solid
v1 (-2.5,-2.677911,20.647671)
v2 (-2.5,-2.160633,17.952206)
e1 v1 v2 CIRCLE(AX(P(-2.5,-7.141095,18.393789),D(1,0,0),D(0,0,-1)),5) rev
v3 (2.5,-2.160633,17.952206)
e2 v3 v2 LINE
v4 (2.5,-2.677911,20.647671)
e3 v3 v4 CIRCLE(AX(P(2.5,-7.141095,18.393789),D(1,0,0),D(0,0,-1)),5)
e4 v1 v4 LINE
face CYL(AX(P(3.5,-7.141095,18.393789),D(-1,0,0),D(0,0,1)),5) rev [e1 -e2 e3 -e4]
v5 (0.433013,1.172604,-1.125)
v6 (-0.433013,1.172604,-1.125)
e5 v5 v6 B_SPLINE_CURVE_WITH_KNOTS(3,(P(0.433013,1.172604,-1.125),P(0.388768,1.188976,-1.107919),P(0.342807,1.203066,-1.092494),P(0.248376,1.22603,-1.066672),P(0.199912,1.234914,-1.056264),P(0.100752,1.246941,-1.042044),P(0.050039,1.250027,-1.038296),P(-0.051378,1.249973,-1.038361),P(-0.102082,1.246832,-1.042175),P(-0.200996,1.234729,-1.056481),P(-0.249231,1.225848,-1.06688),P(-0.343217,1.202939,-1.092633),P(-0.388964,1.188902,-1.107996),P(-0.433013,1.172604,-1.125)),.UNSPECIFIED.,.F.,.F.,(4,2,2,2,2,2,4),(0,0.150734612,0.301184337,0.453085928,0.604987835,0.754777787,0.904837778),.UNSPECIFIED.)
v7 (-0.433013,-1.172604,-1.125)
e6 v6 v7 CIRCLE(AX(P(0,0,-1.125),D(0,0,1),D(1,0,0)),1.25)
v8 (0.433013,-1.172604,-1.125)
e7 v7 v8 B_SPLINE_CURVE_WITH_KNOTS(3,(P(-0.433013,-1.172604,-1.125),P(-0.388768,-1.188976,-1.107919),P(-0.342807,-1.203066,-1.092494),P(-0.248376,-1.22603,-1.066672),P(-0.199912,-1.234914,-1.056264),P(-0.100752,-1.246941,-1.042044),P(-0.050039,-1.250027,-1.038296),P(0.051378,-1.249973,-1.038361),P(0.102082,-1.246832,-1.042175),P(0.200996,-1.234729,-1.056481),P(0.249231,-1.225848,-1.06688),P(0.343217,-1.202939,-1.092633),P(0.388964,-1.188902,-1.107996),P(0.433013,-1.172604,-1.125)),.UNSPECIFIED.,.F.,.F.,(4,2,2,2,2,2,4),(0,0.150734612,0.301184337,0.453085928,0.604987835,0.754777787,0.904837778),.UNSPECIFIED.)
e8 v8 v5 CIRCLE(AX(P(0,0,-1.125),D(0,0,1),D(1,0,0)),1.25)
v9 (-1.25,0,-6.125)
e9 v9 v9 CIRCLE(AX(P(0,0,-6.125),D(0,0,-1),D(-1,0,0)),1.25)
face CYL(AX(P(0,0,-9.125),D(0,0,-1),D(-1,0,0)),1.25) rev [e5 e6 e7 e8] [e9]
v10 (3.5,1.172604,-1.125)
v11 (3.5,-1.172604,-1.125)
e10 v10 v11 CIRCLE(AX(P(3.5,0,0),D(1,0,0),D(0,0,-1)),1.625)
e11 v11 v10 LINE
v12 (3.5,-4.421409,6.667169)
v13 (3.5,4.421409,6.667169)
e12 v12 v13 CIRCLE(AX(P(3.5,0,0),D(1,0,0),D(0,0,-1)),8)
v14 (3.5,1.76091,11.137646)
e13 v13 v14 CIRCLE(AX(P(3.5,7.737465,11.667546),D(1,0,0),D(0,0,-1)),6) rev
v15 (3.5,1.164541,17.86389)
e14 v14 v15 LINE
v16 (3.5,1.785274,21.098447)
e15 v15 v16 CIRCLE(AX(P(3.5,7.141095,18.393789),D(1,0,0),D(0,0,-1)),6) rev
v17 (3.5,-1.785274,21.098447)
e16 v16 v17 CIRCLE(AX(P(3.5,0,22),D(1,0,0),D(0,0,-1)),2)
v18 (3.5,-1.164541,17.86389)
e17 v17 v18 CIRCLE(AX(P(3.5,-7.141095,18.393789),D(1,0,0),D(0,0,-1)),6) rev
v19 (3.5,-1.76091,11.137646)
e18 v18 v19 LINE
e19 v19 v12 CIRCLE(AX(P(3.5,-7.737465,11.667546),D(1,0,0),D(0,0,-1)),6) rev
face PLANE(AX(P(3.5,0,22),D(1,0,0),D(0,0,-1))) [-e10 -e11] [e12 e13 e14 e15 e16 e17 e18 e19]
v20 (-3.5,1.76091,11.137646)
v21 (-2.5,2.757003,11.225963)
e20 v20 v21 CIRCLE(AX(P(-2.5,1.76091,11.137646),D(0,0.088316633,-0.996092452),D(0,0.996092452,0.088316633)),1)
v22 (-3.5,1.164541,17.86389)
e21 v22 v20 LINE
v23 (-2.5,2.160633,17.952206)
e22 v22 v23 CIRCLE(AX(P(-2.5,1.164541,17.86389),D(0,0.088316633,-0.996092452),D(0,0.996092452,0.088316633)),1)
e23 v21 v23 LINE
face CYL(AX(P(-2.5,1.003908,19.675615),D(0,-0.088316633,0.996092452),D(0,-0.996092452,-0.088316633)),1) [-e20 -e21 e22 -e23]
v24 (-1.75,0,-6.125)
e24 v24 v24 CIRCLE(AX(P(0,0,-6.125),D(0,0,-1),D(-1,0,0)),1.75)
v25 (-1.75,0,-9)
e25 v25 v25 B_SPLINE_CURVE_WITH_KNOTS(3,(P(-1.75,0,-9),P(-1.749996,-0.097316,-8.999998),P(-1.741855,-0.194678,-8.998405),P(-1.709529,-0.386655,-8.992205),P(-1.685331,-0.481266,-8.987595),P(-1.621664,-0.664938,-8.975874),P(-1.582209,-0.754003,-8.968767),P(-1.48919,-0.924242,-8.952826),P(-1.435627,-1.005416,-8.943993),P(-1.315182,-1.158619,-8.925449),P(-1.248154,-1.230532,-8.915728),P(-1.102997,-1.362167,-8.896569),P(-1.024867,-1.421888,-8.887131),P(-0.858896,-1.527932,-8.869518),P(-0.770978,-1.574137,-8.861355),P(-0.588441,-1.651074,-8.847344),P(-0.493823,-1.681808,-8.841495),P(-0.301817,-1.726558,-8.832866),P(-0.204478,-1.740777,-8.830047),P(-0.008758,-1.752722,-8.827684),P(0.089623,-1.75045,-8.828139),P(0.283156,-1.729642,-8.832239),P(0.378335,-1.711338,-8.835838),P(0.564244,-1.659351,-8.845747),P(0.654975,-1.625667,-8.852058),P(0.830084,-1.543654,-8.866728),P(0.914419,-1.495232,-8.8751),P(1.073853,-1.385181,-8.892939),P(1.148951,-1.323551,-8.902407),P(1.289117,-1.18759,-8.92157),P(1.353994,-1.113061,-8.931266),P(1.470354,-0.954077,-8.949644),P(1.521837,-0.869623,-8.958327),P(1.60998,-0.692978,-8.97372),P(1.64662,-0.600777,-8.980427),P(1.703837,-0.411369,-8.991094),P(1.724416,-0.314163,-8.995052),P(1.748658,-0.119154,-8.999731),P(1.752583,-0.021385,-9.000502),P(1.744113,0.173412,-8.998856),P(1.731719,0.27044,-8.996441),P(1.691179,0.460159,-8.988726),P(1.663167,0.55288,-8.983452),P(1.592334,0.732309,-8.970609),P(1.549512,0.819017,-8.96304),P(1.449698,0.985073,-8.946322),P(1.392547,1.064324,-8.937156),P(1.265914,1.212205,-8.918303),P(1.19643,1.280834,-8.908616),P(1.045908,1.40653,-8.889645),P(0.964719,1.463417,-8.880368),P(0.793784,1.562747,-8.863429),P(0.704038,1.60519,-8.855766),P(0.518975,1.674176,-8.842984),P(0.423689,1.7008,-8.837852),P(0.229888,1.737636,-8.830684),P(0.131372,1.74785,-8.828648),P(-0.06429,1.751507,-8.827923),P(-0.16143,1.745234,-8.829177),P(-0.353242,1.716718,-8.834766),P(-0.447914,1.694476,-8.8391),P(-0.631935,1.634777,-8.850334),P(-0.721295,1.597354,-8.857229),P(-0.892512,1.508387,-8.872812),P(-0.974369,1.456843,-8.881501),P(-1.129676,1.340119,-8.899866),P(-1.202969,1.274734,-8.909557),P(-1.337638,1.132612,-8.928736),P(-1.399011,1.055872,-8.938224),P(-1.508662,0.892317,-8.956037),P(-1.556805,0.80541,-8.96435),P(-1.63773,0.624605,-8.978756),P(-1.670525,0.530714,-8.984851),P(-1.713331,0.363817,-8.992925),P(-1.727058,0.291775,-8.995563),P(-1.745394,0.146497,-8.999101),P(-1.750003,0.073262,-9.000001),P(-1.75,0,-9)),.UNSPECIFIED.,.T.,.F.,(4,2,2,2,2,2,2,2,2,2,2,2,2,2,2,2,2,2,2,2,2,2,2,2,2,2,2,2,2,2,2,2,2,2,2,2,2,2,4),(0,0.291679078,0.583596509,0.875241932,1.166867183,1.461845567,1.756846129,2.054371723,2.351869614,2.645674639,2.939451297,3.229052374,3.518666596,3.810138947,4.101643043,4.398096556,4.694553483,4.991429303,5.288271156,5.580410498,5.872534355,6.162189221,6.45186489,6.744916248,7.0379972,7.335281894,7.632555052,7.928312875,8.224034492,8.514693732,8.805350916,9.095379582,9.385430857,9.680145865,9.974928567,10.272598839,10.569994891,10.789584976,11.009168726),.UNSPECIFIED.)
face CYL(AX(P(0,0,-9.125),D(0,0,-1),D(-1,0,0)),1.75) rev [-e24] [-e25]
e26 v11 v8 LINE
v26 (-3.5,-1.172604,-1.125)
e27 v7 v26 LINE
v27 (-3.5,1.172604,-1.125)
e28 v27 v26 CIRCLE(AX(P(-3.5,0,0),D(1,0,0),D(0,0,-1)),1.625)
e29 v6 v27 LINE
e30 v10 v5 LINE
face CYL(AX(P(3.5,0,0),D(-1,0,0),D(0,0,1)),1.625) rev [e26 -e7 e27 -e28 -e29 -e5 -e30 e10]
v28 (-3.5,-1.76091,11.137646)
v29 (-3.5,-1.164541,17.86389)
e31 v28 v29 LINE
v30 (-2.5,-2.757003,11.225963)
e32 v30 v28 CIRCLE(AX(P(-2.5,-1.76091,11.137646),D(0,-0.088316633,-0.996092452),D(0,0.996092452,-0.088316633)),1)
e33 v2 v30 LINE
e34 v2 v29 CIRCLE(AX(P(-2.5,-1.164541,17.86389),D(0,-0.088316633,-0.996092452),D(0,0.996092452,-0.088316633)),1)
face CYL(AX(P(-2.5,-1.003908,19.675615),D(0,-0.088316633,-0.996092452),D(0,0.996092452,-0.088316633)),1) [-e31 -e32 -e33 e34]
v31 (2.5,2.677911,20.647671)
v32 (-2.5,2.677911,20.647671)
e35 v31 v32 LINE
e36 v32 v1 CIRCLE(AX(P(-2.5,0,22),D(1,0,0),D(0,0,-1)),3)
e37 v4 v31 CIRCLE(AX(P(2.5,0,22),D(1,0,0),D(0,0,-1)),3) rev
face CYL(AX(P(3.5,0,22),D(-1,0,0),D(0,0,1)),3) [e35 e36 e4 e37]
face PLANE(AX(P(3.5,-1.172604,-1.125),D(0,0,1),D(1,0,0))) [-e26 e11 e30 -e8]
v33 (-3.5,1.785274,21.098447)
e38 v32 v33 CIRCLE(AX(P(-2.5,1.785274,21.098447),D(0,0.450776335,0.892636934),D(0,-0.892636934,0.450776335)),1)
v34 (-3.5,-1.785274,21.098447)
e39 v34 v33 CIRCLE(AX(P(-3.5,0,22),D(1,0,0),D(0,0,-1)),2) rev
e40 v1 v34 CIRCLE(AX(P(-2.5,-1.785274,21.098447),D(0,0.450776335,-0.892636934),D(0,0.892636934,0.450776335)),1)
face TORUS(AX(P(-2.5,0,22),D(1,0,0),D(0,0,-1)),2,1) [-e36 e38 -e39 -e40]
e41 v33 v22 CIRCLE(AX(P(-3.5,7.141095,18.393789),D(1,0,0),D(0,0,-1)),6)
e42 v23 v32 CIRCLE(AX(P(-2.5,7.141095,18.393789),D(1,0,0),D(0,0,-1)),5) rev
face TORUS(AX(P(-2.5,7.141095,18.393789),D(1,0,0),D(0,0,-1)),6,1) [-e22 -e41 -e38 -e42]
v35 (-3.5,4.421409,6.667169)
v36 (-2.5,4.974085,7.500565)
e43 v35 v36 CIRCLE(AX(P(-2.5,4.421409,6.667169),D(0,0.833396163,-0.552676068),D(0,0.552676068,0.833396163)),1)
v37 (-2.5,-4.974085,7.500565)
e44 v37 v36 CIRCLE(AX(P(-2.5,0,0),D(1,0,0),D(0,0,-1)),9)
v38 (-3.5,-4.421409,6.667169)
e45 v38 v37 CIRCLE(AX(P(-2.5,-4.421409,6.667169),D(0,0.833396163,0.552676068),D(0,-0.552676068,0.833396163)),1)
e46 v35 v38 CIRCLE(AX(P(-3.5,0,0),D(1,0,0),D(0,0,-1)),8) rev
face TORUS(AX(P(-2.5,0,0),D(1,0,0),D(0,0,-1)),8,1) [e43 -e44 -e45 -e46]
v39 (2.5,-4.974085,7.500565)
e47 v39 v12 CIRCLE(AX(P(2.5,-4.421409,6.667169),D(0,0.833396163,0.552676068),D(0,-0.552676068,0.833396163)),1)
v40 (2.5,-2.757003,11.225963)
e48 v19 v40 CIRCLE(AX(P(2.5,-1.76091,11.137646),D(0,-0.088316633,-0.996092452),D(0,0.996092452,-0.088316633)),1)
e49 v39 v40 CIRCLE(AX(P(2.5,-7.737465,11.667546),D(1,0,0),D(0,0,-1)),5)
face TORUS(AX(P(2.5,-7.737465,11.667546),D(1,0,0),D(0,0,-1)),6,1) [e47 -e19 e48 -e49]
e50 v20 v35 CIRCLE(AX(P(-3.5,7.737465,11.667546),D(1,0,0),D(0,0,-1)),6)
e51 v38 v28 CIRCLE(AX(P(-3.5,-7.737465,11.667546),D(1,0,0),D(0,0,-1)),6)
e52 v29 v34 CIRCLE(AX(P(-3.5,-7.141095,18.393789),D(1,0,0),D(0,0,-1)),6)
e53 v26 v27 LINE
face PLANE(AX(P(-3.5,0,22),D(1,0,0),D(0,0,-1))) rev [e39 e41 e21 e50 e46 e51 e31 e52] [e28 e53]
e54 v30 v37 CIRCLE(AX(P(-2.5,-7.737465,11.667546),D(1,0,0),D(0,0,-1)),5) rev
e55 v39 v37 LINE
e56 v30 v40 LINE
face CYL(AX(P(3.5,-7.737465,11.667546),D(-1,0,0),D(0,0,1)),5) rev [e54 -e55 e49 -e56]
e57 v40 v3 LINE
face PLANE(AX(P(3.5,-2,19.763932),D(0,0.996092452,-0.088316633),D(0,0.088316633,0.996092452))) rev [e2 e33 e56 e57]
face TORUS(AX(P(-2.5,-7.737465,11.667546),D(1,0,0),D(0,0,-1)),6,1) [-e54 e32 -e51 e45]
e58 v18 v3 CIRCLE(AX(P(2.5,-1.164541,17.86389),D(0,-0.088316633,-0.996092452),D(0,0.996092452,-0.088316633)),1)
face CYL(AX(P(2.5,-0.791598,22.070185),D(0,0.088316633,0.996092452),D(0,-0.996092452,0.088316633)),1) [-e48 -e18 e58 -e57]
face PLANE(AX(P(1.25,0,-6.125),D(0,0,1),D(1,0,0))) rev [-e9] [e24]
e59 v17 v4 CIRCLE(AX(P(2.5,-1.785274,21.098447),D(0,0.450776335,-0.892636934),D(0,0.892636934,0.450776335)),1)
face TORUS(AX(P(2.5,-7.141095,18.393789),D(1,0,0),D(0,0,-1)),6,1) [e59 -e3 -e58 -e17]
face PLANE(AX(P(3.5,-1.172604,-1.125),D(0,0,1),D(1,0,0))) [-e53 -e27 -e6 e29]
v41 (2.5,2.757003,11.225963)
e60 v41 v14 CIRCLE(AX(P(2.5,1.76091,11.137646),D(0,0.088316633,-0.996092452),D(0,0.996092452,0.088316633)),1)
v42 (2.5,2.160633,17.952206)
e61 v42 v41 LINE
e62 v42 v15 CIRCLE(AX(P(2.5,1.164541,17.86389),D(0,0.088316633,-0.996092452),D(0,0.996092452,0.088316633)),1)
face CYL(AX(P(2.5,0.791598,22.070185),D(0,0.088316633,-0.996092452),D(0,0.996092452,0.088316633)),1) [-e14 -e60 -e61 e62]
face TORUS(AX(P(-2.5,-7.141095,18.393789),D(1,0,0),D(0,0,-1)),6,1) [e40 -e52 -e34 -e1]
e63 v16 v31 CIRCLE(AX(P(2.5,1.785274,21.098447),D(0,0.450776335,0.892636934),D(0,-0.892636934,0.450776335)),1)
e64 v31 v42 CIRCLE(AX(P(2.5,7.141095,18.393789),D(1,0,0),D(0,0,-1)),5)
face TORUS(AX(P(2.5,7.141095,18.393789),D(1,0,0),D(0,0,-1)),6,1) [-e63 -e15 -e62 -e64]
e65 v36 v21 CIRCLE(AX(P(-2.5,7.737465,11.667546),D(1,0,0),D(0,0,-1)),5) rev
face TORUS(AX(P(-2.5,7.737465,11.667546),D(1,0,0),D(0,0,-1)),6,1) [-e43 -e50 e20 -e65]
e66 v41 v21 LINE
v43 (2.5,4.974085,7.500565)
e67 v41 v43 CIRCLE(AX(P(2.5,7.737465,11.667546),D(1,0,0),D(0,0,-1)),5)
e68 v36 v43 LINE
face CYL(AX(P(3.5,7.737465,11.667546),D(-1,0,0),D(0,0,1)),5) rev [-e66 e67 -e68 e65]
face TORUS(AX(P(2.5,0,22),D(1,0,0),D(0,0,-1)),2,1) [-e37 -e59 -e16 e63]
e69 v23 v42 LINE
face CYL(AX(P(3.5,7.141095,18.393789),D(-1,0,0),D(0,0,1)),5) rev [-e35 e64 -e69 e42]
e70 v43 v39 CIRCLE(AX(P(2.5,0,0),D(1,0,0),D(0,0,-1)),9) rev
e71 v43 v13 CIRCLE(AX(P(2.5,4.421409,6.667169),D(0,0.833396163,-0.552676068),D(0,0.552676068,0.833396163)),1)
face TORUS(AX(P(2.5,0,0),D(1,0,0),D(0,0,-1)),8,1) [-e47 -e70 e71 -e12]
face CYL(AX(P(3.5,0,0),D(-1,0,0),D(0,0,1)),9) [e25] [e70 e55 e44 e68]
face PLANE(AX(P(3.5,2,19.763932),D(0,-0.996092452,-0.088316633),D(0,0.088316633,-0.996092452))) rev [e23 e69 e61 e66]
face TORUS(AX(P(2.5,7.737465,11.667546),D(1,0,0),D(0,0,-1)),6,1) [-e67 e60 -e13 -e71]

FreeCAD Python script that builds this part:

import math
import FreeCAD as App
import Part
import Sketcher

V = App.Vector


def edges_at(feature, points):
    """Names of the edges that pass closest to the given points."""
    edges = feature.Shape.Edges
    near = lambda p: min(range(len(edges)), key=lambda i: edges[i].distToShape(Part.Vertex(*p))[0])
    return sorted({f"Edge{near(p) + 1}" for p in points})

doc = App.newDocument("Part")
body = doc.addObject("PartDesign::Body", "Body")

sketch1 = doc.addObject("Sketcher::SketchObject", "Sketch")
body.addObject(sketch1)
sketch1.AttachmentSupport = (doc.YZ_Plane, [""])
sketch1.MapMode = "FlatFace"
sketch1.addGeometry([
    Part.LineSegment(V(3, 8.485281, 0), V(2, 19.763932, 0)),
    Part.ArcOfCircle(Part.Circle(V(0, 22, 0), V(0, 0, 1), 3), math.radians(-48.189685), math.radians(228.189685)),
    Part.LineSegment(V(-2, 19.763932, 0), V(-3, 8.485281, 0)),
    Part.ArcOfCircle(Part.Circle(V(0, 0, 0), V(0, 0, 1), 9), math.radians(109.471221), math.radians(430.528779)),
    Part.ArcOfCircle(Part.Circle(V(0, 0, 0), V(0, 0, 1), 1.625), math.radians(-43.813061), math.radians(223.813061)),
    Part.LineSegment(V(1.172604, -1.125, 0), V(-1.172604, -1.125, 0)),
], False)
sketch1.addConstraint([
    Sketcher.Constraint("Coincident", 0, 2, 1, 1),
    Sketcher.Constraint("Coincident", 1, 2, 2, 1),
    Sketcher.Constraint("Coincident", 2, 2, 3, 1),
    Sketcher.Constraint("Coincident", 3, 2, 0, 1),
    Sketcher.Constraint("Coincident", 4, 1, 5, 1),
    Sketcher.Constraint("Coincident", 5, 2, 4, 2),
    Sketcher.Constraint("Horizontal", 5),
    Sketcher.Constraint("Coincident", 3, 3, -1, 1),
    Sketcher.Constraint("Coincident", 4, 3, -1, 1),
    Sketcher.Constraint("Symmetric", 0, 2, 1, 2, -2),
    Sketcher.Constraint("Horizontal", 2, 2, 3, 2),
    Sketcher.Constraint("Radius", 1, 3.0),
    Sketcher.Constraint("Radius", 3, 9.0),
    Sketcher.Constraint("DistanceY", -1, 1, 1, 3, 22.0),
    Sketcher.Constraint("DistanceX", -1, 1, 0, 2, 2.0),
    Sketcher.Constraint("DistanceX", 2, 2, -1, 1, 3.0),
    Sketcher.Constraint("Radius", 4, 1.625),
    Sketcher.Constraint("DistanceY", 4, 1, -1, 1, 1.125),
])
pad1 = doc.addObject("PartDesign::Pad", "Pad")
body.addObject(pad1)
pad1.Profile = sketch1
pad1.Length = 7
pad1.Midplane = True
doc.recompute()

fillet = doc.addObject("PartDesign::Fillet", "Fillet")
body.addObject(fillet)
fillet.Base = (pad1, edges_at(pad1, [
    (0, 2, 19.764),
    (0, 3, 8.485),
    (0, -3, 8.485),
    (0, -2, 19.764),
]))
fillet.Radius = 5

sketch2 = doc.addObject("Sketcher::SketchObject", "Sketch001")
body.addObject(sketch2)
sketch2.AttachmentSupport = (doc.XY_Plane, [""])
sketch2.MapMode = "FlatFace"
sketch2.AttachmentOffset = App.Placement(V(0, 0, -9.125), App.Rotation())
sketch2.addGeometry(Part.Circle(V(0, 0, 0), V(0, 0, 1), 1.25), False)
sketch2.addConstraint([
    Sketcher.Constraint("Coincident", 0, 3, -1, 1),
    Sketcher.Constraint("Diameter", 0, 2.5),
])
doc.recompute()
hole = doc.addObject("PartDesign::Hole", "Hole")
body.addObject(hole)
hole.Profile = sketch2
hole.ThreadType = "None"
hole.Diameter = 2.5
hole.DepthType = "Dimension"
hole.Depth = 9
hole.DrillPoint = "Flat"
hole.HoleCutType = "Counterbore"
hole.HoleCutDiameter = 3.5
hole.HoleCutDepth = 3
hole.Reversed = True
doc.recompute()

fillet2 = doc.addObject("PartDesign::Fillet", "Fillet001")
body.addObject(fillet2)
fillet2.Base = (hole, edges_at(hole, [
    (-3.5, 0, 25),
    (3.5, 0, 25),
    (-3.5, 2.459, 14.589),
    (3.5, 2.459, 14.589),
    (-3.5, 0, -9),
    (3.5, 0, -9),
    (-3.5, -2.459, 14.589),
    (3.5, -2.459, 14.589),
    (-3.5, 2.231, 19.336),
    (3.5, 2.231, 19.336),
    (-3.5, -3.441, 9.11),
    (3.5, -3.441, 9.11),
    (-3.5, -2.231, 19.336),
    (3.5, -2.231, 19.336),
    (-3.5, 3.441, 9.11),
    (3.5, 3.441, 9.11),
]))
fillet2.Radius = 1

doc.recompute()
